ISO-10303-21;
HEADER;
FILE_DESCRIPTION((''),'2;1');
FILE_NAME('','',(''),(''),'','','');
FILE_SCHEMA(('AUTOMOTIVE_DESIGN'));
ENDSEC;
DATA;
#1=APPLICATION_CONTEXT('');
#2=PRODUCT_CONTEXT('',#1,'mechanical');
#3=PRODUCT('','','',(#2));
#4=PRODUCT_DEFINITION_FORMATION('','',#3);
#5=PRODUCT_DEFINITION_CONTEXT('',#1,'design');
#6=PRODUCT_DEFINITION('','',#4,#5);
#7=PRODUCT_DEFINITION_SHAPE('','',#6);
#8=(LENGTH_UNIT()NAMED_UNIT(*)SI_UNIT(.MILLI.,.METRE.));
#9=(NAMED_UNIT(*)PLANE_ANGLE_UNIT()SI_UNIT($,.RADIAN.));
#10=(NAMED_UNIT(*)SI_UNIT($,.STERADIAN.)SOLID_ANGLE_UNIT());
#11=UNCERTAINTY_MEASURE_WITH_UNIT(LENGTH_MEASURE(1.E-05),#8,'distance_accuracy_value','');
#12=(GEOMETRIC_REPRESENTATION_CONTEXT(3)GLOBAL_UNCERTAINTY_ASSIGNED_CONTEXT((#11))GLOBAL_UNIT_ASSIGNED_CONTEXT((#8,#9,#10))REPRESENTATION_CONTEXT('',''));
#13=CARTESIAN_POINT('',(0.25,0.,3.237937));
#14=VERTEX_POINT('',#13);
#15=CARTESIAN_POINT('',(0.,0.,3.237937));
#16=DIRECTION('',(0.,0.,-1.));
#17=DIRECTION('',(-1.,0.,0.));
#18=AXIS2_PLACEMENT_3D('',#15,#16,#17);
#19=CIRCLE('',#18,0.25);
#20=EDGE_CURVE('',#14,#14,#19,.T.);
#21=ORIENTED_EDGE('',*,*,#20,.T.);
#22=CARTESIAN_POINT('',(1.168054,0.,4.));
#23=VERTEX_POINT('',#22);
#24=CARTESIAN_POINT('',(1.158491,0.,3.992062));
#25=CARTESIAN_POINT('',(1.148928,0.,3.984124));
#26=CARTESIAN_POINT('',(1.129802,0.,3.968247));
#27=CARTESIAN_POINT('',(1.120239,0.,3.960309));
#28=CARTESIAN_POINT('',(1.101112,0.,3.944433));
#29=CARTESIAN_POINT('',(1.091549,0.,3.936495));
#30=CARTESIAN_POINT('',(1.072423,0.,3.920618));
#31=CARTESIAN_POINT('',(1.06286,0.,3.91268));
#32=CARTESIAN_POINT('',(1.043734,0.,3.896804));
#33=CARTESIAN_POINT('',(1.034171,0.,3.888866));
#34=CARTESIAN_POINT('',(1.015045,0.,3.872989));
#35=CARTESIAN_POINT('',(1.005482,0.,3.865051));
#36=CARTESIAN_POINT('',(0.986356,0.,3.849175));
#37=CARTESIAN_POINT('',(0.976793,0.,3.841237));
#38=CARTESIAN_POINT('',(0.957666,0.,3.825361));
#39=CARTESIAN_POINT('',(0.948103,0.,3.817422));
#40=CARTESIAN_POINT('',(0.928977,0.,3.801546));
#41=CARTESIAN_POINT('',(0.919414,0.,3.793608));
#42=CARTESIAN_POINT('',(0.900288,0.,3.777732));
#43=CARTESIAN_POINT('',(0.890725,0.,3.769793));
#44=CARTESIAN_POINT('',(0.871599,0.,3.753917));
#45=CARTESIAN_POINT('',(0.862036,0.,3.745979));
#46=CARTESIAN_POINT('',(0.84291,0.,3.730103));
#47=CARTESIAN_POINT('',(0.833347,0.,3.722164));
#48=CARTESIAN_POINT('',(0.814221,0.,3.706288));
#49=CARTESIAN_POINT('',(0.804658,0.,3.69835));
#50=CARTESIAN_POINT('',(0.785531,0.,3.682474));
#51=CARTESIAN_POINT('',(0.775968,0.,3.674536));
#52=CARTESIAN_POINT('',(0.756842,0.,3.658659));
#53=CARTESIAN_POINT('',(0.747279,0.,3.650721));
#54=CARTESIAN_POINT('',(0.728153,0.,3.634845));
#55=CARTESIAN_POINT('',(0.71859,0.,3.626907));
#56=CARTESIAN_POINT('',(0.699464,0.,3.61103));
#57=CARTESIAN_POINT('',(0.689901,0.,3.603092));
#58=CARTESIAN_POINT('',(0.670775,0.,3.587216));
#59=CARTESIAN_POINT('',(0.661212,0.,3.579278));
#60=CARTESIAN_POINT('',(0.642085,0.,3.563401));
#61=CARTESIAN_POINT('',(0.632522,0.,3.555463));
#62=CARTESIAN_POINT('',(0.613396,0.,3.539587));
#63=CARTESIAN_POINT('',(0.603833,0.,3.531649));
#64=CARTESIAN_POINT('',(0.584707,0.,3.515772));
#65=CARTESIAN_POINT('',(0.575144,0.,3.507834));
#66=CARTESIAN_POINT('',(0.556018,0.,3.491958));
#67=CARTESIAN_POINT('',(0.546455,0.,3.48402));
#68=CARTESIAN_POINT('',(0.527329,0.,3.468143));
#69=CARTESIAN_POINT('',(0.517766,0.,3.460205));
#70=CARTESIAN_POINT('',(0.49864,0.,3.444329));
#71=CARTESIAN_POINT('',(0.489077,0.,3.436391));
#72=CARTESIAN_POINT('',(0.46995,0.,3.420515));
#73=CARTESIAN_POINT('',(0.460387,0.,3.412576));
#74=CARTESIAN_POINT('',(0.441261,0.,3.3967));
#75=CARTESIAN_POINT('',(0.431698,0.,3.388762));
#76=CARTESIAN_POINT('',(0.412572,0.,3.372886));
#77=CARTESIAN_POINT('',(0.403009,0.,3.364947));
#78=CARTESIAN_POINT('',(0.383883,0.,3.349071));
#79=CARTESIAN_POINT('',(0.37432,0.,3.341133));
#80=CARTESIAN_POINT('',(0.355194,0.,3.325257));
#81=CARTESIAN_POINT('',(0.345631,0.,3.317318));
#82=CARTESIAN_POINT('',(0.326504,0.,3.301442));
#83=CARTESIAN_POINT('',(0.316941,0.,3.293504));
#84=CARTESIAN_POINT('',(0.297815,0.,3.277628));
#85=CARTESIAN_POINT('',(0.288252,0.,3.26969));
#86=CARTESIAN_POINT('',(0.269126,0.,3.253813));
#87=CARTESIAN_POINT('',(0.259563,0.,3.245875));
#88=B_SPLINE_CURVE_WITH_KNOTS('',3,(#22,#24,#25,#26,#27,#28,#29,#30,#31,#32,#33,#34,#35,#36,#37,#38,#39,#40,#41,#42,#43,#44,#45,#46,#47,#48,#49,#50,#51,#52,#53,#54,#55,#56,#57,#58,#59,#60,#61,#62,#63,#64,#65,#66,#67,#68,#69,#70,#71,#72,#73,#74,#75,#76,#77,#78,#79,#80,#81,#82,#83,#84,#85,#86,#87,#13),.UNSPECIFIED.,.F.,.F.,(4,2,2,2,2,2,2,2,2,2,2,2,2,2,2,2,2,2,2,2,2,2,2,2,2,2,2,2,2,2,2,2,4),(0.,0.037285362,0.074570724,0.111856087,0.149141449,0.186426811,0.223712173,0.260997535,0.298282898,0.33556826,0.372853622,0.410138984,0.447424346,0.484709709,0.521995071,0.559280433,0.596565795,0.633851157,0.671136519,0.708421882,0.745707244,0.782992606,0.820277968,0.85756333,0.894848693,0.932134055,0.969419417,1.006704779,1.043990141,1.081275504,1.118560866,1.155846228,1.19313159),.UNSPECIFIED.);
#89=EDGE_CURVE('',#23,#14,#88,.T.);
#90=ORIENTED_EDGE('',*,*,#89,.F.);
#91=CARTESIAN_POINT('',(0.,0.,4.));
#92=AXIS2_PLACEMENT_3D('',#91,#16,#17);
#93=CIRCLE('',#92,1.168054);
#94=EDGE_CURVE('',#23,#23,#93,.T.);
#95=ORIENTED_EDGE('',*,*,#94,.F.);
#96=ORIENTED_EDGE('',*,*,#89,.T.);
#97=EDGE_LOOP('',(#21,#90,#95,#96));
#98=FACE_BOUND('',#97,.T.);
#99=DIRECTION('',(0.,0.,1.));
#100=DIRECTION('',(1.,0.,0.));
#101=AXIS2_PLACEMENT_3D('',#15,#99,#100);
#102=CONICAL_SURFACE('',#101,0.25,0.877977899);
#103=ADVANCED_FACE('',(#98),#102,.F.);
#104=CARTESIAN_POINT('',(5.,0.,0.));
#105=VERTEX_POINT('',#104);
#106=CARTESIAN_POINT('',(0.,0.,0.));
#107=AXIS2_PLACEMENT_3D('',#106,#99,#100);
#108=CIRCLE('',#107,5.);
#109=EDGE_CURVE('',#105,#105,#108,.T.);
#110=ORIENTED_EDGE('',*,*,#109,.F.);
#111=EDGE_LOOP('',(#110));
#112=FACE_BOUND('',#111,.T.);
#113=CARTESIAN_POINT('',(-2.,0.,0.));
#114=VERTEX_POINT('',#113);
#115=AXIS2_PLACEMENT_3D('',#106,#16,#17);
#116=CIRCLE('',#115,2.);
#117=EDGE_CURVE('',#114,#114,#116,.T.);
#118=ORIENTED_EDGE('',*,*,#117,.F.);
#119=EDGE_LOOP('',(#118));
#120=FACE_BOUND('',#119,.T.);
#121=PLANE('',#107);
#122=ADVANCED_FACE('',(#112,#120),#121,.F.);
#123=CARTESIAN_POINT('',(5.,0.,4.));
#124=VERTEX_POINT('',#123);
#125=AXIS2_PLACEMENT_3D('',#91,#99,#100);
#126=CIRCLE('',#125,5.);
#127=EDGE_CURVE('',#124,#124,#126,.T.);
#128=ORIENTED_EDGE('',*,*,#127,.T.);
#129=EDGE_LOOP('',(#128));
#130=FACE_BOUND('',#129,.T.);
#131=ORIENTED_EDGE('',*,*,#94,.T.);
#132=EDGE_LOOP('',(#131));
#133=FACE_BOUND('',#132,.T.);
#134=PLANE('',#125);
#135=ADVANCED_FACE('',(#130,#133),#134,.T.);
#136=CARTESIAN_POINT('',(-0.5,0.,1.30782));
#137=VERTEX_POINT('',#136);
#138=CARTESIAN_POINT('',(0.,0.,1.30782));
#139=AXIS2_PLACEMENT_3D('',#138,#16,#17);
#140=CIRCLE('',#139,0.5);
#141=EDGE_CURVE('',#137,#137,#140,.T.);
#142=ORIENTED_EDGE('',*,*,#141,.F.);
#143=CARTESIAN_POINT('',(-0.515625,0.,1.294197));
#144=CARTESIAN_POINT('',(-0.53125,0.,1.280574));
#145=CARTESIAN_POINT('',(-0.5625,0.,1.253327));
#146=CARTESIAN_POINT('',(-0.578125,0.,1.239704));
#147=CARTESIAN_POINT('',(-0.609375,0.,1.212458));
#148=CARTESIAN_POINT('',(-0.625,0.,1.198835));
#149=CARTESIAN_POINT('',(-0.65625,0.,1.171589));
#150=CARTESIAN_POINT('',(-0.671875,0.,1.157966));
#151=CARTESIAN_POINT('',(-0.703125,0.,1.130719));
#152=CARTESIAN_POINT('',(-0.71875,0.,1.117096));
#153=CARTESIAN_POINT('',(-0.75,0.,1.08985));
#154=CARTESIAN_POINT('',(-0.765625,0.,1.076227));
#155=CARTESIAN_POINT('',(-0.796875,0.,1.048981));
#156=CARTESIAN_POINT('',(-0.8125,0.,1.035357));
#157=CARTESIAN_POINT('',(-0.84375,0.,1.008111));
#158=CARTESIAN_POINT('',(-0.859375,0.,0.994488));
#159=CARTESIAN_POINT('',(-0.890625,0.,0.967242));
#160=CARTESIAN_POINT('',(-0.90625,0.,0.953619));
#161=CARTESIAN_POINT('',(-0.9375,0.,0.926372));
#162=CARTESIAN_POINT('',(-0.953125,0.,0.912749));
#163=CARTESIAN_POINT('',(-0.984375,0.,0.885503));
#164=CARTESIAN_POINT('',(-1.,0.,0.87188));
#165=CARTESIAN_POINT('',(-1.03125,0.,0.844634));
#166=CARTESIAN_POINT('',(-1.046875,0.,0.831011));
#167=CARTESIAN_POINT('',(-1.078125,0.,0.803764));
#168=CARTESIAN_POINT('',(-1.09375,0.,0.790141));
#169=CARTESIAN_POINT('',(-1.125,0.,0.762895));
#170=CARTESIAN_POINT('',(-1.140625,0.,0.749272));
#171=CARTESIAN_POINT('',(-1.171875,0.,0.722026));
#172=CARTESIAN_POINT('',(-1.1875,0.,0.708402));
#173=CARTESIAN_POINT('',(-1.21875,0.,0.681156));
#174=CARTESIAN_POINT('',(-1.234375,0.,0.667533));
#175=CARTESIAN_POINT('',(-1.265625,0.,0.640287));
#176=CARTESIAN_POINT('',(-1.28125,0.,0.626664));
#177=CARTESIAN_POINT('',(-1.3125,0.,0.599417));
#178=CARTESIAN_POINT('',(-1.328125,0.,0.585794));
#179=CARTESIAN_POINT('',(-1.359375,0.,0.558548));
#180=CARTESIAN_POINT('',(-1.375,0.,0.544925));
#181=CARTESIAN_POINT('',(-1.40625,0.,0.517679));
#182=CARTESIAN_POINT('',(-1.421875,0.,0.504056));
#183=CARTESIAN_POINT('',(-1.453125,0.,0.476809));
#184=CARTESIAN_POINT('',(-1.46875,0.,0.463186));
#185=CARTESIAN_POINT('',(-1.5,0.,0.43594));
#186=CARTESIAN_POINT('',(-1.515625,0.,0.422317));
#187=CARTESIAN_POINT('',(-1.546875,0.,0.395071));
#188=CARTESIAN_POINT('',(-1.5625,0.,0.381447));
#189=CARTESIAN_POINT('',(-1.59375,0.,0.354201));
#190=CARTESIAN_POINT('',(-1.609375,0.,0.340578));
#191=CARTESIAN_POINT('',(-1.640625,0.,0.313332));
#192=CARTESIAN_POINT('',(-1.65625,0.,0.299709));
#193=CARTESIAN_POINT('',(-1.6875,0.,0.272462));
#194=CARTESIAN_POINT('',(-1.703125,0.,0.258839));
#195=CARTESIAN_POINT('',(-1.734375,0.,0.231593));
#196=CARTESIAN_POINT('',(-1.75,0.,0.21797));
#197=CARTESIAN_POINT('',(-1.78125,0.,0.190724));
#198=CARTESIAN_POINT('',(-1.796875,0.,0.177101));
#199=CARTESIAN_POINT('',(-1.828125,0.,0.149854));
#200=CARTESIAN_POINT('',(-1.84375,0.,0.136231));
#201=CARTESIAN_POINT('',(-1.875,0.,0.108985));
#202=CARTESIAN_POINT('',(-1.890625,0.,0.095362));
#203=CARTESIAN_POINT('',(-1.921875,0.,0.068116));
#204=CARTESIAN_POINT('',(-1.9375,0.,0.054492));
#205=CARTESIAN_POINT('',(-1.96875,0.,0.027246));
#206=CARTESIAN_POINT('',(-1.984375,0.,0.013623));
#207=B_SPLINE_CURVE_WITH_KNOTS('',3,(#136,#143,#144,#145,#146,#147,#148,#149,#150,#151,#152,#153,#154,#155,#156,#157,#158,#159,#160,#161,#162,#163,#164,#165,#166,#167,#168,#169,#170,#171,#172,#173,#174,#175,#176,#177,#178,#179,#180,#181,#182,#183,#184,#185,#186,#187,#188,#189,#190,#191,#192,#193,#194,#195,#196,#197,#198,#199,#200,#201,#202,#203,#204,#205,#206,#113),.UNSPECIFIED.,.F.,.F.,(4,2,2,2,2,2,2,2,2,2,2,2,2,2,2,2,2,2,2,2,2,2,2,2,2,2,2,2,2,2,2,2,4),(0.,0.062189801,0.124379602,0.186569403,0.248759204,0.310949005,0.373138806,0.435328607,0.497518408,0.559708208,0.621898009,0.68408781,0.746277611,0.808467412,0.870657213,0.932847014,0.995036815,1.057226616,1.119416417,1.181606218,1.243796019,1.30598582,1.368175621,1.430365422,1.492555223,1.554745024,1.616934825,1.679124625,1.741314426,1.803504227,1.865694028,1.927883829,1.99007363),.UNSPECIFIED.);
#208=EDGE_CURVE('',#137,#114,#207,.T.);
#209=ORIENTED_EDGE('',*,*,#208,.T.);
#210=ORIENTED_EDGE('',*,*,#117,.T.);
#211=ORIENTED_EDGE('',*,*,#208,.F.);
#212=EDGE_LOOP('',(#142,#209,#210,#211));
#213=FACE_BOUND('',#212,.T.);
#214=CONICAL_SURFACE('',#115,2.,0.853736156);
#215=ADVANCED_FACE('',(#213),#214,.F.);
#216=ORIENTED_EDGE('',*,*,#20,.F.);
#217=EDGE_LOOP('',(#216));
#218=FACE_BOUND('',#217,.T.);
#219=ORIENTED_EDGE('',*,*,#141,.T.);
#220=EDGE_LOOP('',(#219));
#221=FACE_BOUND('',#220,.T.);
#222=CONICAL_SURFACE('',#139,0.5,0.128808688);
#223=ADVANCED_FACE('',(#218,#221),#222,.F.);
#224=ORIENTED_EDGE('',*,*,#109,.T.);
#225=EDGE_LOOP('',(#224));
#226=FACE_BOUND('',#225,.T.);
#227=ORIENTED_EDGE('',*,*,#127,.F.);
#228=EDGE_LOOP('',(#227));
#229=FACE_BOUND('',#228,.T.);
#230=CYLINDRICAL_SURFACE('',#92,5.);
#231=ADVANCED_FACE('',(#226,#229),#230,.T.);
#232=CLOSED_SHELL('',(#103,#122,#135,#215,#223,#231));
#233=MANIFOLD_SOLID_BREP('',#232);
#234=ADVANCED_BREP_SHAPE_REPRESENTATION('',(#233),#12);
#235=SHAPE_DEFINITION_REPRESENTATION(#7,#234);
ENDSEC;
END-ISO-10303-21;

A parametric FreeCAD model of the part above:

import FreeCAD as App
import Part
import Sketcher
from FreeCAD import Vector


def add_polygon(sketch, points):
    """Adds a closed chain of lines whose ends are joined by coincident constraints."""
    first, n = sketch.GeometryCount, len(points)
    for a, b in zip(points, points[1:] + points[:1]):
        sketch.addGeometry(Part.LineSegment(App.Vector(*a, 0), App.Vector(*b, 0)), False)
    for i in range(n):
        sketch.addConstraint(Sketcher.Constraint("Coincident", first + i, 2, first + (i + 1) % n, 1))

doc = App.newDocument("Part")
body = doc.addObject("PartDesign::Body", "Body")

sketch1 = body.newObject("Sketcher::SketchObject", "Sketch")
sketch1.AttachmentSupport = (doc.getObject("XY_Plane"), [""])
sketch1.MapMode = "FlatFace"
sketch1.addGeometry(Part.Circle(Vector(0, 0, 0), Vector(0, 0, 1), 5), False)
sketch1.addConstraint([
    Sketcher.Constraint("Coincident", 0, 3, -1, 1),
    Sketcher.Constraint("Diameter", 0, 10.0),
])
pad1 = body.newObject("PartDesign::Pad", "Pad")
pad1.Profile = sketch1
pad1.Length = 4

sketch2 = body.newObject("Sketcher::SketchObject", "Sketch001")
sketch2.AttachmentSupport = (doc.getObject("YZ_Plane"), [""])
sketch2.MapMode = "FlatFace"
add_polygon(sketch2, [(0.2, 3.2), (1.2, 4), (0, 4), (0, 0), (2, 0), (0.5, 1.3)])
sketch2.addConstraint([
    Sketcher.Constraint("Horizontal", 1),
    Sketcher.Constraint("Vertical", 2),
    Sketcher.Constraint("Horizontal", 3),
    Sketcher.Constraint("Coincident", 2, 2, -1, 1),
    Sketcher.Constraint("DistanceX", 3, 1, 3, 2, 2.0),
    Sketcher.Constraint("DistanceY", 2, 2, 2, 1, 4.0),
    Sketcher.Constraint("DistanceX", -1, 1, 4, 2, 0.5),
    Sketcher.Constraint("DistanceX", -1, 1, 5, 2, 0.25),
    Sketcher.Constraint("Distance", 0, 1.193132),
    Sketcher.Constraint("Distance", 5, 1.94624),
    Sketcher.Constraint("DistanceX", 1, 2, 1, 1, 1.168054),
])
groove = body.newObject("PartDesign::Groove", "Groove")
groove.Profile = sketch2
groove.ReferenceAxis = (sketch2, ["V_Axis"])
groove.Angle = 360

doc.recompute()
